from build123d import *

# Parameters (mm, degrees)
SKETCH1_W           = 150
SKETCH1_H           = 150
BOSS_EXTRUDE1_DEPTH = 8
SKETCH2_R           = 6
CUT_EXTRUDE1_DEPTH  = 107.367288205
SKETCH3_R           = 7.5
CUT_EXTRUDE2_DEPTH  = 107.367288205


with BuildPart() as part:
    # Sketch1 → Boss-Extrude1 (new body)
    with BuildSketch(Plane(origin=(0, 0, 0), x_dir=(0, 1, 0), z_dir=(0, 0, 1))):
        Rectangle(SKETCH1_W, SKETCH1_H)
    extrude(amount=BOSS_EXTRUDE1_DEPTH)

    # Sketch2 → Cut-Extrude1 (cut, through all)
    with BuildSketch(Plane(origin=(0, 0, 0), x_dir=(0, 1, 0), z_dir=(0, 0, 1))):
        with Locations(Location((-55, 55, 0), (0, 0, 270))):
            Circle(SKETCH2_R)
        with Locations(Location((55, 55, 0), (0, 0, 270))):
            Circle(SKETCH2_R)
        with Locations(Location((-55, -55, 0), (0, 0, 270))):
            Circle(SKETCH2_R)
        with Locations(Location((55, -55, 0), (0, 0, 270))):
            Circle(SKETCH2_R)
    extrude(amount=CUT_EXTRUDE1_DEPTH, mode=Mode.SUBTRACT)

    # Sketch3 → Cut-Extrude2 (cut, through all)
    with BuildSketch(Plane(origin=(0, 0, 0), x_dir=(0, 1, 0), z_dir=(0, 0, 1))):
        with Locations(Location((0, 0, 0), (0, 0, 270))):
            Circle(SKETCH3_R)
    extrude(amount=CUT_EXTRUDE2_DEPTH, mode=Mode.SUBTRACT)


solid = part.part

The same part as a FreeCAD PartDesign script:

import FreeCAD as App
import Part
import Sketcher
Q = App.Units.Quantity

doc = App.newDocument("Part")
body = doc.addObject("PartDesign::Body", "Body")

# Sketch on XY plane
sketch1 = body.newObject("Sketcher::SketchObject", "Sketch")
sketch1.AttachmentSupport = (doc.getObject("XY_Plane"), [""])
sketch1.MapMode = "FlatFace"
sketch1.addGeometry(Part.LineSegment(App.Vector(-75, -75, 0), App.Vector(75, -75, 0)), False)
sketch1.addGeometry(Part.LineSegment(App.Vector(75, -75, 0), App.Vector(75, 75, 0)), False)
sketch1.addGeometry(Part.LineSegment(App.Vector(75, 75, 0), App.Vector(-75, 75, 0)), False)
sketch1.addGeometry(Part.LineSegment(App.Vector(-75, 75, 0), App.Vector(-75, -75, 0)), False)
sketch1.addConstraint(Sketcher.Constraint("Coincident", 0, 2, 1, 1))
sketch1.addConstraint(Sketcher.Constraint("Coincident", 1, 2, 2, 1))
sketch1.addConstraint(Sketcher.Constraint("Coincident", 2, 2, 3, 1))
sketch1.addConstraint(Sketcher.Constraint("Coincident", 3, 2, 0, 1))
sketch1.addConstraint(Sketcher.Constraint("Horizontal", 0))
sketch1.addConstraint(Sketcher.Constraint("Vertical", 1))
sketch1.addConstraint(Sketcher.Constraint("Horizontal", 2))
sketch1.addConstraint(Sketcher.Constraint("Vertical", 3))
sketch1.addConstraint(Sketcher.Constraint("Symmetric", 0, 2, 2, 2, -1, 1))
sketch1.addConstraint(Sketcher.Constraint("Equal", 2, 1))
sketch1.addConstraint(Sketcher.Constraint("DistanceX", 0, 1, 0, 2, Q("150 mm")))
pad1 = body.newObject("PartDesign::Pad", "Pad")
pad1.Profile = sketch1
pad1.Length = 8

# Sketch on XY plane
sketch2 = body.newObject("Sketcher::SketchObject", "Sketch001")
sketch2.AttachmentSupport = (doc.getObject("XY_Plane"), [""])
sketch2.MapMode = "FlatFace"
sketch2.addGeometry(Part.Circle(App.Vector(-55, -55, 0), App.Vector(0, 0, 1), 6), False)
sketch2.addGeometry(Part.Circle(App.Vector(-55, 55, 0), App.Vector(0, 0, 1), 6), False)
sketch2.addGeometry(Part.Circle(App.Vector(55, -55, 0), App.Vector(0, 0, 1), 6), False)
sketch2.addGeometry(Part.Circle(App.Vector(55, 55, 0), App.Vector(0, 0, 1), 6), False)
sketch2.addConstraint(Sketcher.Constraint("Equal", 0, 1))
sketch2.addConstraint(Sketcher.Constraint("Equal", 1, 2))
sketch2.addConstraint(Sketcher.Constraint("Equal", 2, 3))
sketch2.addConstraint(Sketcher.Constraint("Symmetric", 1, 3, 2, 3, -1, 1))
sketch2.addConstraint(Sketcher.Constraint("Symmetric", 0, 3, 3, 3, -1, 1))
sketch2.addConstraint(Sketcher.Constraint("Symmetric", 0, 3, 2, 3, -2))
sketch2.addConstraint(Sketcher.Constraint("Diameter", 0, Q("12 mm")))
sketch2.addConstraint(Sketcher.Constraint("DistanceX", 0, 3, -1, 1, Q("55 mm")))
sketch2.addConstraint(Sketcher.Constraint("DistanceY", 0, 3, -1, 1, Q("55 mm")))
pocket1 = body.newObject("PartDesign::Pocket", "Pocket")
pocket1.Profile = sketch2
pocket1.Type = "ThroughAll"
pocket1.Reversed = True

# Sketch on XY plane
sketch3 = body.newObject("Sketcher::SketchObject", "Sketch002")
sketch3.AttachmentSupport = (doc.getObject("XY_Plane"), [""])
sketch3.MapMode = "FlatFace"
sketch3.addGeometry(Part.Circle(App.Vector(0, 0, 0), App.Vector(0, 0, 1), 8), False)
sketch3.addConstraint(Sketcher.Constraint("Coincident", 0, 3, -1, 1))
sketch3.addConstraint(Sketcher.Constraint("Diameter", 0, Q("15 mm")))
pocket2 = body.newObject("PartDesign::Pocket", "Pocket001")
pocket2.Profile = sketch3
pocket2.Type = "ThroughAll"
pocket2.Reversed = True

doc.recompute()
